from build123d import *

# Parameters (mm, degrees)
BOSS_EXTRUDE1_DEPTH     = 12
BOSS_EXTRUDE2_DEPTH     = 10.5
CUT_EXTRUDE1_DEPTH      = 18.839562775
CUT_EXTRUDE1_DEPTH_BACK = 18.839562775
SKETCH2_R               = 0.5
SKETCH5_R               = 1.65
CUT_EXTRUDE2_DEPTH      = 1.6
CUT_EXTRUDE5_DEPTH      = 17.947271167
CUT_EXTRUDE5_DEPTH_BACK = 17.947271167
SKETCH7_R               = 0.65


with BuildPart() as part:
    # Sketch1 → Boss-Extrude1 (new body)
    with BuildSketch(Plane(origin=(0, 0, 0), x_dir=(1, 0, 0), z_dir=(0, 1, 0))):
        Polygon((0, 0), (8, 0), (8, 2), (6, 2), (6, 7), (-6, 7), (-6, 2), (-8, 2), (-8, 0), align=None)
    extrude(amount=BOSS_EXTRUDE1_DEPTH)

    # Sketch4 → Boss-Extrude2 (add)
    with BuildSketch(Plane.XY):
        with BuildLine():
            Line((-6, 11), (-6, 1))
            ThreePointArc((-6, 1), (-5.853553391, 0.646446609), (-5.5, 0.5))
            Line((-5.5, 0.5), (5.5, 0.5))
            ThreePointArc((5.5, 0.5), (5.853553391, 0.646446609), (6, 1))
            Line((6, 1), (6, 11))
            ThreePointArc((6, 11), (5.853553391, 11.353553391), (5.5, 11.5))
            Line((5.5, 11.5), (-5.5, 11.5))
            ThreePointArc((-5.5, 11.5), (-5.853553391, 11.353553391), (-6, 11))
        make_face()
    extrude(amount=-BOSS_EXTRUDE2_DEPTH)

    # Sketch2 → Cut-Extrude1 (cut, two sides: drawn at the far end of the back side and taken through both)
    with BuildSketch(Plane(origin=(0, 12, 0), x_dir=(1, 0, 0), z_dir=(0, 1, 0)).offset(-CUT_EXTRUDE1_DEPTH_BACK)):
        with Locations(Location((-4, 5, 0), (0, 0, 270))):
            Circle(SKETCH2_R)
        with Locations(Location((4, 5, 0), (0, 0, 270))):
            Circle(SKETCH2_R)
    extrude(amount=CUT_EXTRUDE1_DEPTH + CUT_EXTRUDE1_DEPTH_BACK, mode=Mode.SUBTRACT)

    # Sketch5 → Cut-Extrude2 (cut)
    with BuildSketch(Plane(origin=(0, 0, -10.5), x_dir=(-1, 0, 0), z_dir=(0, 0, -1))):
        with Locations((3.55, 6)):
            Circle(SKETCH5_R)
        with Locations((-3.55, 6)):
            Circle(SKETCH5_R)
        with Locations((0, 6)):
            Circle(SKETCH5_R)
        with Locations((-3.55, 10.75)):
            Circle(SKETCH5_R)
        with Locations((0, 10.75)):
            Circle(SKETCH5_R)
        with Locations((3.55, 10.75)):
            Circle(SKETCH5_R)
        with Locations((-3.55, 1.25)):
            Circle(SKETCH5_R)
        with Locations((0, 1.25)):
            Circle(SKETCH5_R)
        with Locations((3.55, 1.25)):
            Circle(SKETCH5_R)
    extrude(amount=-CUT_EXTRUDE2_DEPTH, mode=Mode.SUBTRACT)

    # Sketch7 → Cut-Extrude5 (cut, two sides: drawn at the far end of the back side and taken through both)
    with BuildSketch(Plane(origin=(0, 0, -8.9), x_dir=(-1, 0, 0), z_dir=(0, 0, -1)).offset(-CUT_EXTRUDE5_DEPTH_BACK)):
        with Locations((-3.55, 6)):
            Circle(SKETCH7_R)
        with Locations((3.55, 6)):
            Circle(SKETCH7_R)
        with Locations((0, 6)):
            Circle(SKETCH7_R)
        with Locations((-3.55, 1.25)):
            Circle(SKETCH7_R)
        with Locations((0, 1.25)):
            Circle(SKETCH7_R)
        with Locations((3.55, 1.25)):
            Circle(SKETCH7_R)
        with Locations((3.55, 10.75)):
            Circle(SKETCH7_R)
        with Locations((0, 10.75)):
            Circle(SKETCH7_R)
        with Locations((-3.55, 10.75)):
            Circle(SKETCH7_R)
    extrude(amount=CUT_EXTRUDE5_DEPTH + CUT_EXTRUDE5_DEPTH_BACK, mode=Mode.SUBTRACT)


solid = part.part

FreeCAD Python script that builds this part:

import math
import FreeCAD as App
import Part
import Sketcher
from FreeCAD import Vector
Q = App.Units.Quantity


def add_polygon(sketch, points):
    """Adds a closed chain of lines whose ends are joined by coincident constraints."""
    first, n = sketch.GeometryCount, len(points)
    for a, b in zip(points, points[1:] + points[:1]):
        sketch.addGeometry(Part.LineSegment(App.Vector(*a, 0), App.Vector(*b, 0)), False)
    for i in range(n):
        sketch.addConstraint(Sketcher.Constraint("Coincident", first + i, 2, first + (i + 1) % n, 1))

doc = App.newDocument("Part")
body = doc.addObject("PartDesign::Body", "Body")

# Sketch on XZ plane
sketch1 = body.newObject("Sketcher::SketchObject", "Sketch")
sketch1.AttachmentSupport = (doc.getObject("XZ_Plane"), [""])
sketch1.MapMode = "FlatFace"
add_polygon(sketch1, [(8, 0), (8, -2), (6, -2), (6, -7), (-6, -7), (-6, -2), (-8, -2), (-8, 0)])  # lines 0-7
sketch1.addConstraint(Sketcher.Constraint("Vertical", 0))
sketch1.addConstraint(Sketcher.Constraint("Horizontal", 1))
sketch1.addConstraint(Sketcher.Constraint("Vertical", 2))
sketch1.addConstraint(Sketcher.Constraint("Horizontal", 3))
sketch1.addConstraint(Sketcher.Constraint("Vertical", 4))
sketch1.addConstraint(Sketcher.Constraint("Horizontal", 5))
sketch1.addConstraint(Sketcher.Constraint("Vertical", 6))
sketch1.addConstraint(Sketcher.Constraint("Horizontal", 7))
sketch1.addConstraint(Sketcher.Constraint("Symmetric", 6, 2, 7, 2, -1, 1))
sketch1.addConstraint(Sketcher.Constraint("Symmetric", 1, 2, 4, 2, -2))
sketch1.addConstraint(Sketcher.Constraint("Equal", 5, 0))
sketch1.addConstraint(Sketcher.Constraint("DistanceX", 1, 2, 1, 1, Q("2 mm")))
sketch1.addConstraint(Sketcher.Constraint("DistanceX", 3, 2, 3, 1, Q("12 mm")))
sketch1.addConstraint(Sketcher.Constraint("DistanceY", 2, 2, 2, 1, Q("5 mm")))
pad1 = body.newObject("PartDesign::Pad", "Pad")
pad1.Profile = sketch1
pad1.Length = 12
pad1.Reversed = True

# Sketch on XY plane
sketch2 = body.newObject("Sketcher::SketchObject", "Sketch001")
sketch2.AttachmentSupport = (doc.getObject("XY_Plane"), [""])
sketch2.MapMode = "FlatFace"
sketch2.addGeometry(Part.LineSegment(Vector(-6, 11, 0), Vector(-6, 1, 0)), False)
sketch2.addGeometry(Part.ArcOfCircle(Part.Circle(Vector(-5.5, 1, 0), Vector(0, 0, 1), 0.5), math.radians(180), math.radians(270)), False)
sketch2.addGeometry(Part.LineSegment(Vector(-5.5, 0.5, 0), Vector(5.5, 0.5, 0)), False)
sketch2.addGeometry(Part.ArcOfCircle(Part.Circle(Vector(5.5, 1, 0), Vector(0, 0, 1), 0.5), math.radians(-90), math.radians(0)), False)
sketch2.addGeometry(Part.LineSegment(Vector(6, 1, 0), Vector(6, 11, 0)), False)
sketch2.addGeometry(Part.ArcOfCircle(Part.Circle(Vector(5.5, 11, 0), Vector(0, 0, 1), 0.5), math.radians(0), math.radians(90)), False)
sketch2.addGeometry(Part.LineSegment(Vector(5.5, 11.5, 0), Vector(-5.5, 11.5, 0)), False)
sketch2.addGeometry(Part.ArcOfCircle(Part.Circle(Vector(-5.5, 11, 0), Vector(0, 0, 1), 0.5), math.radians(90), math.radians(180)), False)
sketch2.addConstraint(Sketcher.Constraint("Tangent", 0, 2, 1, 1))
sketch2.addConstraint(Sketcher.Constraint("Tangent", 1, 2, 2, 1))
sketch2.addConstraint(Sketcher.Constraint("Tangent", 2, 2, 3, 1))
sketch2.addConstraint(Sketcher.Constraint("Tangent", 3, 2, 4, 1))
sketch2.addConstraint(Sketcher.Constraint("Tangent", 4, 2, 5, 1))
sketch2.addConstraint(Sketcher.Constraint("Tangent", 5, 2, 6, 1))
sketch2.addConstraint(Sketcher.Constraint("Tangent", 6, 2, 7, 1))
sketch2.addConstraint(Sketcher.Constraint("Tangent", 7, 2, 0, 1))
sketch2.addConstraint(Sketcher.Constraint("Vertical", 0))
sketch2.addConstraint(Sketcher.Constraint("Horizontal", 2))
sketch2.addConstraint(Sketcher.Constraint("Vertical", 4))
sketch2.addConstraint(Sketcher.Constraint("Horizontal", 6))
sketch2.addConstraint(Sketcher.Constraint("Equal", 1, 3))
sketch2.addConstraint(Sketcher.Constraint("Equal", 3, 5))
sketch2.addConstraint(Sketcher.Constraint("Equal", 5, 7))
sketch2.addConstraint(Sketcher.Constraint("Radius", 1, Q("0.5 mm")))
sketch2.addConstraint(Sketcher.Constraint("DistanceX", 2, 1, 2, 2, Q("11 mm")))
sketch2.addConstraint(Sketcher.Constraint("DistanceY", 0, 2, 0, 1, Q("10 mm")))
sketch2.addConstraint(Sketcher.Constraint("DistanceY", -1, 1, 1, 3, Q("1 mm")))
sketch2.addConstraint(Sketcher.Constraint("DistanceX", 0, 2, -1, 1, Q("6 mm")))
pad2 = body.newObject("PartDesign::Pad", "Pad001")
pad2.Profile = sketch2
pad2.Length = 10.5
pad2.Reversed = True

# Sketch on XZ plane
sketch3 = body.newObject("Sketcher::SketchObject", "Sketch002")
sketch3.AttachmentSupport = (doc.getObject("XZ_Plane"), [""])
sketch3.MapMode = "FlatFace"
sketch3.AttachmentOffset = App.Placement(Vector(0, 0, -12), App.Rotation())
sketch3.addGeometry(Part.Circle(Vector(-4, -5, 0), Vector(0, 0, 1), 0.5), False)
sketch3.addGeometry(Part.Circle(Vector(4, -5, 0), Vector(0, 0, 1), 0.5), False)
sketch3.addConstraint(Sketcher.Constraint("Equal", 0, 1))
sketch3.addConstraint(Sketcher.Constraint("Symmetric", 0, 3, 1, 3, -2))
sketch3.addConstraint(Sketcher.Constraint("Diameter", 0, Q("1 mm")))
sketch3.addConstraint(Sketcher.Constraint("DistanceX", 0, 3, -1, 1, Q("4 mm")))
sketch3.addConstraint(Sketcher.Constraint("DistanceY", 0, 3, -1, 1, Q("5 mm")))
pocket1 = body.newObject("PartDesign::Pocket", "Pocket")
pocket1.Profile = sketch3
pocket1.Type = "ThroughAll"
pocket1.Midplane = True

# Sketch on XY plane
sketch4 = body.newObject("Sketcher::SketchObject", "Sketch003")
sketch4.AttachmentSupport = (doc.getObject("XY_Plane"), [""])
sketch4.MapMode = "FlatFace"
sketch4.AttachmentOffset = App.Placement(Vector(0, 0, -10.5), App.Rotation())
sketch4.addGeometry(Part.Circle(Vector(-3.55, 6, 0), Vector(0, 0, 1), 1.65), False)
sketch4.addGeometry(Part.Circle(Vector(3.55, 6, 0), Vector(0, 0, 1), 1.65), False)
sketch4.addGeometry(Part.Circle(Vector(0, 6, 0), Vector(0, 0, 1), 1.65), False)
sketch4.addGeometry(Part.Circle(Vector(3.55, 10.75, 0), Vector(0, 0, 1), 1.65), False)
sketch4.addGeometry(Part.Circle(Vector(0, 10.75, 0), Vector(0, 0, 1), 1.65), False)
sketch4.addGeometry(Part.Circle(Vector(-3.55, 10.75, 0), Vector(0, 0, 1), 1.65), False)
sketch4.addGeometry(Part.Circle(Vector(3.55, 1.25, 0), Vector(0, 0, 1), 1.65), False)
sketch4.addGeometry(Part.Circle(Vector(0, 1.25, 0), Vector(0, 0, 1), 1.65), False)
sketch4.addGeometry(Part.Circle(Vector(-3.55, 1.25, 0), Vector(0, 0, 1), 1.65), False)
sketch4.addConstraint(Sketcher.Constraint("Equal", 0, 1))
sketch4.addConstraint(Sketcher.Constraint("Equal", 1, 2))
sketch4.addConstraint(Sketcher.Constraint("Equal", 2, 3))
sketch4.addConstraint(Sketcher.Constraint("Equal", 3, 4))
sketch4.addConstraint(Sketcher.Constraint("Equal", 4, 5))
sketch4.addConstraint(Sketcher.Constraint("Equal", 5, 6))
sketch4.addConstraint(Sketcher.Constraint("Equal", 6, 7))
sketch4.addConstraint(Sketcher.Constraint("Equal", 7, 8))
sketch4.addConstraint(Sketcher.Constraint("Symmetric", 0, 3, 1, 3, -2))
sketch4.addConstraint(Sketcher.Constraint("Symmetric", 3, 3, 5, 3, -2))
sketch4.addConstraint(Sketcher.Constraint("Symmetric", 6, 3, 8, 3, -2))
sketch4.addConstraint(Sketcher.Constraint("PointOnObject", 2, 3, -2))
sketch4.addConstraint(Sketcher.Constraint("PointOnObject", 4, 3, -2))
sketch4.addConstraint(Sketcher.Constraint("PointOnObject", 7, 3, -2))
sketch4.addConstraint(Sketcher.Constraint("Horizontal", 1, 3, 2, 3))
sketch4.addConstraint(Sketcher.Constraint("Horizontal", 3, 3, 4, 3))
sketch4.addConstraint(Sketcher.Constraint("Horizontal", 6, 3, 7, 3))
sketch4.addConstraint(Sketcher.Constraint("Vertical", 1, 3, 3, 3))
sketch4.addConstraint(Sketcher.Constraint("Vertical", 3, 3, 6, 3))
sketch4.addConstraint(Sketcher.Constraint("Diameter", 0, Q("3.3 mm")))
sketch4.addConstraint(Sketcher.Constraint("DistanceY", -1, 1, 0, 3, Q("6 mm")))
sketch4.addConstraint(Sketcher.Constraint("DistanceX", 0, 3, 1, 3, Q("7.1 mm")))
sketch4.addConstraint(Sketcher.Constraint("DistanceY", 6, 3, 3, 3, Q("9.5 mm")))
sketch4.addConstraint(Sketcher.Constraint("DistanceY", -1, 1, 3, 3, Q("10.75 mm")))
pocket2 = body.newObject("PartDesign::Pocket", "Pocket001")
pocket2.Profile = sketch4
pocket2.Length = 1.6
pocket2.Reversed = True

# Sketch on XY plane
sketch5 = body.newObject("Sketcher::SketchObject", "Sketch004")
sketch5.AttachmentSupport = (doc.getObject("XY_Plane"), [""])
sketch5.MapMode = "FlatFace"
sketch5.AttachmentOffset = App.Placement(Vector(0, 0, -8.9), App.Rotation())
sketch5.addGeometry(Part.Circle(Vector(3.55, 6, 0), Vector(0, 0, 1), 0.65), False)
sketch5.addGeometry(Part.Circle(Vector(-3.55, 6, 0), Vector(0, 0, 1), 0.65), False)
sketch5.addGeometry(Part.Circle(Vector(0, 6, 0), Vector(0, 0, 1), 0.65), False)
sketch5.addGeometry(Part.Circle(Vector(3.55, 1.25, 0), Vector(0, 0, 1), 0.65), False)
sketch5.addGeometry(Part.Circle(Vector(0, 1.25, 0), Vector(0, 0, 1), 0.65), False)
sketch5.addGeometry(Part.Circle(Vector(-3.55, 1.25, 0), Vector(0, 0, 1), 0.65), False)
sketch5.addGeometry(Part.Circle(Vector(-3.55, 10.75, 0), Vector(0, 0, 1), 0.65), False)
sketch5.addGeometry(Part.Circle(Vector(0, 10.75, 0), Vector(0, 0, 1), 0.65), False)
sketch5.addGeometry(Part.Circle(Vector(3.55, 10.75, 0), Vector(0, 0, 1), 0.65), False)
sketch5.addConstraint(Sketcher.Constraint("Equal", 0, 1))
sketch5.addConstraint(Sketcher.Constraint("Equal", 1, 2))
sketch5.addConstraint(Sketcher.Constraint("Equal", 2, 3))
sketch5.addConstraint(Sketcher.Constraint("Equal", 3, 4))
sketch5.addConstraint(Sketcher.Constraint("Equal", 4, 5))
sketch5.addConstraint(Sketcher.Constraint("Equal", 5, 6))
sketch5.addConstraint(Sketcher.Constraint("Equal", 6, 7))
sketch5.addConstraint(Sketcher.Constraint("Equal", 7, 8))
sketch5.addConstraint(Sketcher.Constraint("Symmetric", 0, 3, 1, 3, -2))
sketch5.addConstraint(Sketcher.Constraint("Symmetric", 3, 3, 5, 3, -2))
sketch5.addConstraint(Sketcher.Constraint("Symmetric", 6, 3, 8, 3, -2))
sketch5.addConstraint(Sketcher.Constraint("PointOnObject", 2, 3, -2))
sketch5.addConstraint(Sketcher.Constraint("PointOnObject", 4, 3, -2))
sketch5.addConstraint(Sketcher.Constraint("PointOnObject", 7, 3, -2))
sketch5.addConstraint(Sketcher.Constraint("Horizontal", 1, 3, 2, 3))
sketch5.addConstraint(Sketcher.Constraint("Horizontal", 3, 3, 4, 3))
sketch5.addConstraint(Sketcher.Constraint("Horizontal", 6, 3, 7, 3))
sketch5.addConstraint(Sketcher.Constraint("Vertical", 0, 3, 3, 3))
sketch5.addConstraint(Sketcher.Constraint("Vertical", 5, 3, 6, 3))
sketch5.addConstraint(Sketcher.Constraint("Diameter", 0, Q("1.3 mm")))
sketch5.addConstraint(Sketcher.Constraint("DistanceY", -1, 1, 0, 3, Q("6 mm")))
sketch5.addConstraint(Sketcher.Constraint("DistanceX", 1, 3, 0, 3, Q("7.1 mm")))
sketch5.addConstraint(Sketcher.Constraint("DistanceY", 5, 3, 6, 3, Q("9.5 mm")))
sketch5.addConstraint(Sketcher.Constraint("DistanceY", -1, 1, 3, 3, Q("1.25 mm")))
pocket3 = body.newObject("PartDesign::Pocket", "Pocket002")
pocket3.Profile = sketch5
pocket3.Type = "ThroughAll"
pocket3.Midplane = True

doc.recompute()
